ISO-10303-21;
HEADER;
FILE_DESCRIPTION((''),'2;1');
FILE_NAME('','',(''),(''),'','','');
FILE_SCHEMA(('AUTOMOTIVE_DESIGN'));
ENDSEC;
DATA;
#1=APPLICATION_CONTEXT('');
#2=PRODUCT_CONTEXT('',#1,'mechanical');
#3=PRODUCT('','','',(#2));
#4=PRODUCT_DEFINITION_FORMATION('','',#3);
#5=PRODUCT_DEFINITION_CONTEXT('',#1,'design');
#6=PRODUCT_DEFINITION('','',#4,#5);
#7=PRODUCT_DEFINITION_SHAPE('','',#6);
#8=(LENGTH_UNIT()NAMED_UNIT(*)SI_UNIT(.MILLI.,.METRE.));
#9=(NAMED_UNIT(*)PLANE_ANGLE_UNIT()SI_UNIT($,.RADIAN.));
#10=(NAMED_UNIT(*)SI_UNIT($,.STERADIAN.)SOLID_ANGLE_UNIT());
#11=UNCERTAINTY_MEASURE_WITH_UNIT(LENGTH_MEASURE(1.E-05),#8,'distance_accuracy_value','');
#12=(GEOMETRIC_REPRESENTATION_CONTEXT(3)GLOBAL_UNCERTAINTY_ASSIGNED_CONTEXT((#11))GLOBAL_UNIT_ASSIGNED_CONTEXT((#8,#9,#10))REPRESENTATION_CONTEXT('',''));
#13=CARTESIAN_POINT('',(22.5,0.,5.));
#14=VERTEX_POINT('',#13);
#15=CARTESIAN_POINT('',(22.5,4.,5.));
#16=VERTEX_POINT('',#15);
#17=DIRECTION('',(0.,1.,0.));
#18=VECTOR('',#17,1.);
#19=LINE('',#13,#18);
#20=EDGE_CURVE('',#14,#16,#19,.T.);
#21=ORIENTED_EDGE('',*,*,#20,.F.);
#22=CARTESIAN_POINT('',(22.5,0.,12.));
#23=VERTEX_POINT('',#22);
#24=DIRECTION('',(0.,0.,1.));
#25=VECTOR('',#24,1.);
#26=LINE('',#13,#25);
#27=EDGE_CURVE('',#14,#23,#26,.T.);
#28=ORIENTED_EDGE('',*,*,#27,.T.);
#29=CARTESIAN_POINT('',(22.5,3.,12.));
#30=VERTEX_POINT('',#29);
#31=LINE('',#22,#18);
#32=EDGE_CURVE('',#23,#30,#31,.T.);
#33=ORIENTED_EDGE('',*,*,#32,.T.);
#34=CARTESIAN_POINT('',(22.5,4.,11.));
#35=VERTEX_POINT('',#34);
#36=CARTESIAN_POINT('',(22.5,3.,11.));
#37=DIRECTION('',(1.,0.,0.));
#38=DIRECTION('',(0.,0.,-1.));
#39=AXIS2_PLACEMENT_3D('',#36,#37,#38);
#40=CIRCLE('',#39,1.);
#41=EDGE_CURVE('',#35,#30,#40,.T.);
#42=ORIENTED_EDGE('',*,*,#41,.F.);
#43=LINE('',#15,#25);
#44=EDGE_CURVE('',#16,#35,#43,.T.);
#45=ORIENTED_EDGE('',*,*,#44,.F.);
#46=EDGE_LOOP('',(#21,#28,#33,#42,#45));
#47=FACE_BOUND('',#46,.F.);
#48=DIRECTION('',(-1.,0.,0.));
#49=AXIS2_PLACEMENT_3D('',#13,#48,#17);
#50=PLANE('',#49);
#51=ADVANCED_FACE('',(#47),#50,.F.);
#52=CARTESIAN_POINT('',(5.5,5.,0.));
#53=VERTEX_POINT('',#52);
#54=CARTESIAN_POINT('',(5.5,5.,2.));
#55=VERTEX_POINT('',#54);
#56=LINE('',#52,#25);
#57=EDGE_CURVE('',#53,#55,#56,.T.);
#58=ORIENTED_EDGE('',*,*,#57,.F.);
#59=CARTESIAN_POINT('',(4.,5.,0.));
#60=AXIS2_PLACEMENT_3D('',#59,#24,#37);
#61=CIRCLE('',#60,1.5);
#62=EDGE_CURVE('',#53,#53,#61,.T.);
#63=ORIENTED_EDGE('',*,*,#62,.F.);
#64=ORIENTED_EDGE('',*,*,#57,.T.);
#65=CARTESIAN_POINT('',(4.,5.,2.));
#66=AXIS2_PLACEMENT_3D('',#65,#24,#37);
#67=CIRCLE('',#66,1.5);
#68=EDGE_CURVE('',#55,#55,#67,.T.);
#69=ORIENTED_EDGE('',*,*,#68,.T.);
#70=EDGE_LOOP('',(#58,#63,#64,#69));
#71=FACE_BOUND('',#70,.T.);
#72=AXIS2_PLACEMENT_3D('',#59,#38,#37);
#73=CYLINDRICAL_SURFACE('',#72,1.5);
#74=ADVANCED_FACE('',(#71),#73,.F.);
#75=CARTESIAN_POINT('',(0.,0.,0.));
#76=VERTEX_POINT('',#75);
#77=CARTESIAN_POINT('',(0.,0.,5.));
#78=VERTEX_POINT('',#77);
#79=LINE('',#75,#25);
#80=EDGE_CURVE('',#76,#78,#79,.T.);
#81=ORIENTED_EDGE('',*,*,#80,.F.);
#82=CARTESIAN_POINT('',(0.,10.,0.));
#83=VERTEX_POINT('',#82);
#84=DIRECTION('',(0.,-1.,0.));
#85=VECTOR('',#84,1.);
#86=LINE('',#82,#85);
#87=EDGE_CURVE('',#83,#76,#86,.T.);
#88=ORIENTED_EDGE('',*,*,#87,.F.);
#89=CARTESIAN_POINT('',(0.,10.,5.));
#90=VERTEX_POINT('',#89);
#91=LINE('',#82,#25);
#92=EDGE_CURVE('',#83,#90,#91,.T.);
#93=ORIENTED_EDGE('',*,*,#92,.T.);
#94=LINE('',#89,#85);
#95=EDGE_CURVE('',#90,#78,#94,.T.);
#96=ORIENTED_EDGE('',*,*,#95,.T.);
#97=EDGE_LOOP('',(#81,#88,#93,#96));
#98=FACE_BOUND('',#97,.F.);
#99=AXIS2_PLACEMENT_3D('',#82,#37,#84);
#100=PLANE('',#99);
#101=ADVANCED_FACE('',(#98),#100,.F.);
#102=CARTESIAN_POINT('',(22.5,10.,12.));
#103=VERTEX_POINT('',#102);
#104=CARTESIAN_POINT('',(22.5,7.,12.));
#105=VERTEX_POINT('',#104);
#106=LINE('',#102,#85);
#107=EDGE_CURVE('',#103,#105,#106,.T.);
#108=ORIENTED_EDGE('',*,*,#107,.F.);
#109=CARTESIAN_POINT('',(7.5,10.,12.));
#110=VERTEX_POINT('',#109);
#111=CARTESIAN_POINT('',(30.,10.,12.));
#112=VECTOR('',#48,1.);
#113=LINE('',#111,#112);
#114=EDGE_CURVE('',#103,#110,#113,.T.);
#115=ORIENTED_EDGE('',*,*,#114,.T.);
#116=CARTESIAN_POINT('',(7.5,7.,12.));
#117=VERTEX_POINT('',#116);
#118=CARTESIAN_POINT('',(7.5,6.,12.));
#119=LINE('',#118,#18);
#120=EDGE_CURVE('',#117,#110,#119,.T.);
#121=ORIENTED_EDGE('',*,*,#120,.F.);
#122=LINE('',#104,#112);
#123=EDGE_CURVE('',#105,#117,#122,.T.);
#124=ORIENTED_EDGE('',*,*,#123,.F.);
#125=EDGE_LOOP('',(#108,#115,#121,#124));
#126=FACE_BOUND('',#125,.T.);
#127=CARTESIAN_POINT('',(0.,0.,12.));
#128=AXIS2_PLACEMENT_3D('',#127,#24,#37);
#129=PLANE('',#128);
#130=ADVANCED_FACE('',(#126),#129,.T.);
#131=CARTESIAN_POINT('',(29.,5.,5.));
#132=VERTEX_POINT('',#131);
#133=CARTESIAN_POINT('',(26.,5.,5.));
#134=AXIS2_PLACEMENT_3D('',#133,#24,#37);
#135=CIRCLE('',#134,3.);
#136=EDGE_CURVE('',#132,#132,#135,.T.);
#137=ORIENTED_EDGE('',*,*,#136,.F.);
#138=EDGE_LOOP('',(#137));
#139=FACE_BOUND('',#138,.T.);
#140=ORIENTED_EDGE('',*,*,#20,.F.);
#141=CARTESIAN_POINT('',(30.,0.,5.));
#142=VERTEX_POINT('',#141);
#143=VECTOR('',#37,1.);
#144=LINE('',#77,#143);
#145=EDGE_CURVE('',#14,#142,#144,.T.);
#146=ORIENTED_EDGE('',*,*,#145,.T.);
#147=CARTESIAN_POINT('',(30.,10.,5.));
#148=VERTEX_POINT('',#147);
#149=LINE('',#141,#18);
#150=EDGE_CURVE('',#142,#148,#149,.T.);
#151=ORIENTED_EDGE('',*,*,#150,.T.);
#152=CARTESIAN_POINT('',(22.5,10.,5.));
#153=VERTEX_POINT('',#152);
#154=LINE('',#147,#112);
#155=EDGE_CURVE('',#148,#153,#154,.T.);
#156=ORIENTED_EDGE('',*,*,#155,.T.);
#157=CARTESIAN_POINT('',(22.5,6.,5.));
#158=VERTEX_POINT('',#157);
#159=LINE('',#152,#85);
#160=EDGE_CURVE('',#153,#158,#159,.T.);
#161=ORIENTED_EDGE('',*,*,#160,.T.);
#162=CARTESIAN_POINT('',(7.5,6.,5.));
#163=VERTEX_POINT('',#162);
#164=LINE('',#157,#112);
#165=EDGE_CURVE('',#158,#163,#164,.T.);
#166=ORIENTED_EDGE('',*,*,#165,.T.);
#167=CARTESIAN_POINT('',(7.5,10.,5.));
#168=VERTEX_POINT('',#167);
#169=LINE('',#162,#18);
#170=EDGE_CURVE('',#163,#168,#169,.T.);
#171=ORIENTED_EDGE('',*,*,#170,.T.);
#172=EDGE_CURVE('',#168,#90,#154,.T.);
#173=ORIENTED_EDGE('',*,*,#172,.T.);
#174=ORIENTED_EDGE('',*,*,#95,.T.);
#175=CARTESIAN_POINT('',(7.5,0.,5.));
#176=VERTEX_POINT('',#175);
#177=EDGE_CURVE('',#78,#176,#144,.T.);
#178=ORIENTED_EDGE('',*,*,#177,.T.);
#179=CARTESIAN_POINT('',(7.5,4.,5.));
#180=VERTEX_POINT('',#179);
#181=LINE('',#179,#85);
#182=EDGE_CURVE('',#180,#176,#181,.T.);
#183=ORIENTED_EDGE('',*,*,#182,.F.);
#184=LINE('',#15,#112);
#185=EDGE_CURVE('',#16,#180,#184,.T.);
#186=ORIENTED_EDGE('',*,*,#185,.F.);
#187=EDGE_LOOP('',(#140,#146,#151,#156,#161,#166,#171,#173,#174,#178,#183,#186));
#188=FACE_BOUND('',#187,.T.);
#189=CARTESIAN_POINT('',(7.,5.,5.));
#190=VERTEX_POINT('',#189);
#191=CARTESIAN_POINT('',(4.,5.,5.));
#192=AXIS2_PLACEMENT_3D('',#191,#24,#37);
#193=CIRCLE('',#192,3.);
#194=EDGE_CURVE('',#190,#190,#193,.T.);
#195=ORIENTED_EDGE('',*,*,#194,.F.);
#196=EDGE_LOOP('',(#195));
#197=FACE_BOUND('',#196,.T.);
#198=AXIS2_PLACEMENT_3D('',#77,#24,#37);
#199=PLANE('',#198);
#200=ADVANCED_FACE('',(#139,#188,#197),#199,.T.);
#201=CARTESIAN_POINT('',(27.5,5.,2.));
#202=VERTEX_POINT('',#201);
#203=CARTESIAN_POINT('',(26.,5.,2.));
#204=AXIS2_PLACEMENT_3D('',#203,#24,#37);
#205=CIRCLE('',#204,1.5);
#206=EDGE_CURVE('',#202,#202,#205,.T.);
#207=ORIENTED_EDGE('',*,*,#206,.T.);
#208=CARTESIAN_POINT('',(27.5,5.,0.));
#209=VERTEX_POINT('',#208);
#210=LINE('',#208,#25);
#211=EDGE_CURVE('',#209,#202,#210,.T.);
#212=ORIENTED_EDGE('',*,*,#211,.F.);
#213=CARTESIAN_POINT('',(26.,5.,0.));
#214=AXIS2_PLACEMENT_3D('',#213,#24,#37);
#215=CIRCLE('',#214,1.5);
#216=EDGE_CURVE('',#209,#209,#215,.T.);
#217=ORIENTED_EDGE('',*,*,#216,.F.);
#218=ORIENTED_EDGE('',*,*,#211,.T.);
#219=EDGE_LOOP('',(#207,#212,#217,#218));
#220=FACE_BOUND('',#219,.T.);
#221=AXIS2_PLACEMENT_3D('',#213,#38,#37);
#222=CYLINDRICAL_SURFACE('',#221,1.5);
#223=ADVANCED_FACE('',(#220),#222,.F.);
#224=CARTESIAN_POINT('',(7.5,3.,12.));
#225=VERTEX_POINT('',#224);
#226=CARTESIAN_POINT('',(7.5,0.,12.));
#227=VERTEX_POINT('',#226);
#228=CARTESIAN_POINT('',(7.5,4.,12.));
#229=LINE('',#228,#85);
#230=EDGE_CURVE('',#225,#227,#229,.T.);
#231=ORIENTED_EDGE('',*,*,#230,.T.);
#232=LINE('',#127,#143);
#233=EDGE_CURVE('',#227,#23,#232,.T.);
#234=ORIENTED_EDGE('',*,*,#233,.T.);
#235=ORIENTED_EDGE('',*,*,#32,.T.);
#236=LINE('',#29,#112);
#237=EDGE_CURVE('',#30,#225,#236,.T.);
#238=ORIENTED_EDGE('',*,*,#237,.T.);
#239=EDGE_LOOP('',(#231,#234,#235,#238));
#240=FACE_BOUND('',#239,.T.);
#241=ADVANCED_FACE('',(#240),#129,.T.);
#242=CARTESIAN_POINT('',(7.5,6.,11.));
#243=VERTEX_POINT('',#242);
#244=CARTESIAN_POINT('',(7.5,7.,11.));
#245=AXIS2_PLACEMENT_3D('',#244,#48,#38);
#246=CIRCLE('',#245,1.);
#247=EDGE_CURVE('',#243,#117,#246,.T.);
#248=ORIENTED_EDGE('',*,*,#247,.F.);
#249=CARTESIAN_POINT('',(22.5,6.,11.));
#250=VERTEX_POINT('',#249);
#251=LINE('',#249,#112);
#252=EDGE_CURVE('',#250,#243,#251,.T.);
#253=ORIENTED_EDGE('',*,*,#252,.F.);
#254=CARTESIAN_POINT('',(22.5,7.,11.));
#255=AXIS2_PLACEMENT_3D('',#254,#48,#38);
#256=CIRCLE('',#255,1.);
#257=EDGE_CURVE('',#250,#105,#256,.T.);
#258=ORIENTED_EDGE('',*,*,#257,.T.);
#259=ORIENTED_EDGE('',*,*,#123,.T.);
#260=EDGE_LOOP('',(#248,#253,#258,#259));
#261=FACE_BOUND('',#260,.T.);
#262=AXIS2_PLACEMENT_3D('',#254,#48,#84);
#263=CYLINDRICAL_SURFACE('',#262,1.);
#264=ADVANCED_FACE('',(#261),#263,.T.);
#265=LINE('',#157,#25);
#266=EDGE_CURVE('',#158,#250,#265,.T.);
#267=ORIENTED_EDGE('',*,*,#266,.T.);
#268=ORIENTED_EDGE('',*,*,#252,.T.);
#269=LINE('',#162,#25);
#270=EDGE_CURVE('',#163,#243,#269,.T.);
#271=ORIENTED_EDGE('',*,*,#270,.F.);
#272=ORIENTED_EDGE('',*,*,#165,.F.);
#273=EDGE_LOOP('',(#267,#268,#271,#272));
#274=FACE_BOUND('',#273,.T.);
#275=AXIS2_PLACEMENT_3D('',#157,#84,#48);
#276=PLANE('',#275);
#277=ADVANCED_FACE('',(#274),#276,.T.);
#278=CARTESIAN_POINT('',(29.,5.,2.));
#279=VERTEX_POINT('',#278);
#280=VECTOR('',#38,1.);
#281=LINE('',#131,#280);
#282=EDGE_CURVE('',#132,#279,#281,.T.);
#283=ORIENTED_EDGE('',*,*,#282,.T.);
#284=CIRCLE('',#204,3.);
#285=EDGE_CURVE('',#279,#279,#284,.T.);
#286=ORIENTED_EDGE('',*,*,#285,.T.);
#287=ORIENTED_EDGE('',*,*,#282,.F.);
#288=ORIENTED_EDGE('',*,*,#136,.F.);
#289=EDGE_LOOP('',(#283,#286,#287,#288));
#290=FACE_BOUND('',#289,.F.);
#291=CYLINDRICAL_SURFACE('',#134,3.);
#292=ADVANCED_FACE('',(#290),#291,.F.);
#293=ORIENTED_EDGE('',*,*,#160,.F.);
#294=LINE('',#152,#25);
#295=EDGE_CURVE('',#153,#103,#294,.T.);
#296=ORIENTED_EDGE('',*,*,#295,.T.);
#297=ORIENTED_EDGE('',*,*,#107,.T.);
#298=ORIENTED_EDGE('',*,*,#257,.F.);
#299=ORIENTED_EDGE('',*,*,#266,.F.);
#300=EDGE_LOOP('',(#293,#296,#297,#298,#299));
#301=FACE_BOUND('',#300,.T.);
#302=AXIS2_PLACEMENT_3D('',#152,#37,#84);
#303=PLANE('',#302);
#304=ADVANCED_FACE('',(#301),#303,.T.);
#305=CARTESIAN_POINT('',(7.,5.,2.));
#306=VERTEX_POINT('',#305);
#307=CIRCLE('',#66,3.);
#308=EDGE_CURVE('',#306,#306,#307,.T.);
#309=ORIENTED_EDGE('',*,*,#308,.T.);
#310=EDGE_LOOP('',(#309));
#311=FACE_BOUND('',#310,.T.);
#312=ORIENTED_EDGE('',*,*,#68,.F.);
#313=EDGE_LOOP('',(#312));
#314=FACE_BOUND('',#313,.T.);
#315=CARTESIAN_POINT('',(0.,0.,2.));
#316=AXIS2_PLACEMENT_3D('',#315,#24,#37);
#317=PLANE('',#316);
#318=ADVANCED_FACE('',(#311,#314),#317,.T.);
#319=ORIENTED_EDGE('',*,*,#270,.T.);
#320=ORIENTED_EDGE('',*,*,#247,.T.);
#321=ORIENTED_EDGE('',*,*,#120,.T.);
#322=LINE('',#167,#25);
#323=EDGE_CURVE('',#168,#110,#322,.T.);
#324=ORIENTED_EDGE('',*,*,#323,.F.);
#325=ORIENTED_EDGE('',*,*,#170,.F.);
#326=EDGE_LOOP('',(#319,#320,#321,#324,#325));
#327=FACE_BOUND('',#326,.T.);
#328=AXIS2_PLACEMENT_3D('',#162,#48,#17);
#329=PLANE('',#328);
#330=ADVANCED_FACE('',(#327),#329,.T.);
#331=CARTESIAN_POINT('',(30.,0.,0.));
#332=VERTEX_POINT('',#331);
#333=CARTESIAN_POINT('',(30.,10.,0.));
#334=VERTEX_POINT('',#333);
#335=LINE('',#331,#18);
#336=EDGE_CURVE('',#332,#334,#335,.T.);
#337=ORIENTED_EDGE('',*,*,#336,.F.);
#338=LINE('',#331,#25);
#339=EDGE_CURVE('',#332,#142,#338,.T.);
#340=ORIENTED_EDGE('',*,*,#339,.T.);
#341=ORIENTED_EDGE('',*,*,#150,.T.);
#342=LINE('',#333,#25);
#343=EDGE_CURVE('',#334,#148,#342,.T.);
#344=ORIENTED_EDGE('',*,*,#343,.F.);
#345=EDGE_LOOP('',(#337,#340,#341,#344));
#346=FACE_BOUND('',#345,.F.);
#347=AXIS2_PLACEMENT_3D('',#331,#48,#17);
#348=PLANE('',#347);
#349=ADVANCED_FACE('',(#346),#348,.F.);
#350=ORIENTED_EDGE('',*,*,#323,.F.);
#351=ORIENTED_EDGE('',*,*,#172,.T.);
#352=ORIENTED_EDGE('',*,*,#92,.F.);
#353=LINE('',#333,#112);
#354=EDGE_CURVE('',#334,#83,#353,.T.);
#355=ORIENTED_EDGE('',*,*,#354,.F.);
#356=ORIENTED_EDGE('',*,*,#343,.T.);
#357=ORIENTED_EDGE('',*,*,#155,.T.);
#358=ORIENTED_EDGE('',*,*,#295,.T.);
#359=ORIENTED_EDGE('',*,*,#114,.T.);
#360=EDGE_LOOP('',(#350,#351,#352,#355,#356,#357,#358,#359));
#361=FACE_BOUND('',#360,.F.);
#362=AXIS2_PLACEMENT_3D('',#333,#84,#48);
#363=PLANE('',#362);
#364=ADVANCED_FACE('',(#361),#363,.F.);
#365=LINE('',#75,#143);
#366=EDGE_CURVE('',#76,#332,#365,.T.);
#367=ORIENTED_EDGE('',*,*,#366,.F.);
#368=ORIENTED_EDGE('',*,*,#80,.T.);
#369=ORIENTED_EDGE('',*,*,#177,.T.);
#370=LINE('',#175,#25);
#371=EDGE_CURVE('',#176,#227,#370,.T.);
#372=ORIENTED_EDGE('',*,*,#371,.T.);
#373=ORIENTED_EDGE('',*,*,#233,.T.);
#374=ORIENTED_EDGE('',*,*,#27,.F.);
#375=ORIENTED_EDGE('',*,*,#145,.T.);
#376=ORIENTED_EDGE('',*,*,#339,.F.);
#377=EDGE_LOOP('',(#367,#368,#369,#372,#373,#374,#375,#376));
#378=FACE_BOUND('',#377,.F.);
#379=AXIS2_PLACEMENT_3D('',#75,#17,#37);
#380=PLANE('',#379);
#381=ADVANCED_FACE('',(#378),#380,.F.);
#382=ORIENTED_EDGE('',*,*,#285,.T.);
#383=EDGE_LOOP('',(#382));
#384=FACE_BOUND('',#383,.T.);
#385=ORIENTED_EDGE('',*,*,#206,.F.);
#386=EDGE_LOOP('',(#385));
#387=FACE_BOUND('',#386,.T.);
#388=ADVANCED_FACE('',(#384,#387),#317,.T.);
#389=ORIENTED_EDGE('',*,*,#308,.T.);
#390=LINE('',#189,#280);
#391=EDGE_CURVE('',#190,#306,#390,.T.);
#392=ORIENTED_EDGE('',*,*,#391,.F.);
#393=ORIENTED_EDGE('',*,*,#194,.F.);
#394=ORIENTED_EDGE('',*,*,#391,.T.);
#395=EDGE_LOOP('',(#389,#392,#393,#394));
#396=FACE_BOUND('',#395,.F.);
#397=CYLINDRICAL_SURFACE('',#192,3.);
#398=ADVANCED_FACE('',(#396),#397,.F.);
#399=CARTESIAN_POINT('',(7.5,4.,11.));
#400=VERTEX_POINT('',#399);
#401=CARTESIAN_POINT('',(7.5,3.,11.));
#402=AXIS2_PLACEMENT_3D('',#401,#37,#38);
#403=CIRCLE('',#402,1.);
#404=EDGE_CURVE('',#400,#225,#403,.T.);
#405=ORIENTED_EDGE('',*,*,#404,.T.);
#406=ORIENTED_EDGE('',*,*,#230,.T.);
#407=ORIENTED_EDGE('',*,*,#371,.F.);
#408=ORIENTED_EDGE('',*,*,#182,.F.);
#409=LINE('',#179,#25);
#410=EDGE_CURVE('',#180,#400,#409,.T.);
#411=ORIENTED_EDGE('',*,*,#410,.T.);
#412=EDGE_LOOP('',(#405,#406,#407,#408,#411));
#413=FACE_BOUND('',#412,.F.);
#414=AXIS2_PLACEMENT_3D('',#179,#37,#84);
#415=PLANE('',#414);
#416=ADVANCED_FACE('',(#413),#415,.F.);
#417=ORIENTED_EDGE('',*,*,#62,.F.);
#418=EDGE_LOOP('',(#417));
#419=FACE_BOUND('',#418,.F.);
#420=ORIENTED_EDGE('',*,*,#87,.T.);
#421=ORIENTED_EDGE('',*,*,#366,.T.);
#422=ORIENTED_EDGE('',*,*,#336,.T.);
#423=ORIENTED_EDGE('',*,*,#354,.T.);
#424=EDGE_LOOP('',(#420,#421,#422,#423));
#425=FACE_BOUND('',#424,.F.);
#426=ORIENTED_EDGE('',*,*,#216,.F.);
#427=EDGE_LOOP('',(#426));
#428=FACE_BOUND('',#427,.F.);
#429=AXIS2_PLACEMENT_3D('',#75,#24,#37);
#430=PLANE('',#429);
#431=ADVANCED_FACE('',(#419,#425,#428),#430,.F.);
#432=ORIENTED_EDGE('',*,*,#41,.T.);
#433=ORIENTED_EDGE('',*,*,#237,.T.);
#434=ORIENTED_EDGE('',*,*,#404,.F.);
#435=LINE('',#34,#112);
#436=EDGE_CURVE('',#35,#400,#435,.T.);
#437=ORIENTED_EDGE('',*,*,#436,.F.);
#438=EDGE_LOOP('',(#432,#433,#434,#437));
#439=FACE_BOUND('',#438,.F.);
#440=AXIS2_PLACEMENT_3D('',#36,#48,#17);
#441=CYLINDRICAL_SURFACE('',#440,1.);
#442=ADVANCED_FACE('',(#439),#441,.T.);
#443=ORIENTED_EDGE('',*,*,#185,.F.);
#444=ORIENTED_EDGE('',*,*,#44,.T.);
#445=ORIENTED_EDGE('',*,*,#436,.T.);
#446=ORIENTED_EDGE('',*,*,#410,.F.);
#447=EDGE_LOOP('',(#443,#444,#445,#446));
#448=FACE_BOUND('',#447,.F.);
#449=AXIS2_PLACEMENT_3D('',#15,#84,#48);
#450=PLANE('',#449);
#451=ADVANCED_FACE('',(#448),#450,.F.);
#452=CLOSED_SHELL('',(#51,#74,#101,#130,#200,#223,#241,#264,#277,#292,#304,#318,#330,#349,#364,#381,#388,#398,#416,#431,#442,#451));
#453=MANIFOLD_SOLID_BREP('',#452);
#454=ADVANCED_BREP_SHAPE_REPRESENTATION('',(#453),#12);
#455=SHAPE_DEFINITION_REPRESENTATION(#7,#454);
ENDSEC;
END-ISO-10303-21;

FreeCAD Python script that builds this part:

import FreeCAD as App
import Part
import Sketcher
from FreeCAD import Vector


def edges_at(feature, points):
    """Names of the edges that pass closest to the given points."""
    edges = feature.Shape.Edges
    near = lambda p: min(range(len(edges)), key=lambda i: edges[i].distToShape(Part.Vertex(*p))[0])
    return sorted({f"Edge{near(p) + 1}" for p in points})

doc = App.newDocument("Part")
body = doc.addObject("PartDesign::Body", "Body")

# Sketch on XY plane
sketch1 = body.newObject("Sketcher::SketchObject", "Sketch")
sketch1.AttachmentSupport = (doc.getObject("XY_Plane"), [""])
sketch1.MapMode = "FlatFace"
sketch1.addGeometry([
    Part.LineSegment(Vector(0, 10, 0), Vector(0, 0, 0)),  # 0
    Part.LineSegment(Vector(0, 0, 0), Vector(30, 0, 0)),  # 1
    Part.LineSegment(Vector(30, 0, 0), Vector(30, 10, 0)),  # 2
    Part.LineSegment(Vector(30, 10, 0), Vector(0, 10, 0)),  # 3
    Part.Circle(Vector(4, 5, 0), Vector(0, 0, 1), 1.5),  # 4
    Part.Circle(Vector(26, 5, 0), Vector(0, 0, 1), 1.5),  # 5
], False)
sketch1.addConstraint([
    Sketcher.Constraint("Coincident", 0, 2, 1, 1),
    Sketcher.Constraint("Coincident", 1, 2, 2, 1),
    Sketcher.Constraint("Coincident", 2, 2, 3, 1),
    Sketcher.Constraint("Coincident", 3, 2, 0, 1),
    Sketcher.Constraint("Vertical", 0),
    Sketcher.Constraint("Horizontal", 1),
    Sketcher.Constraint("Vertical", 2),
    Sketcher.Constraint("Horizontal", 3),
    Sketcher.Constraint("Coincident", 0, 2, -1, 1),
    Sketcher.Constraint("Equal", 4, 5),
    Sketcher.Constraint("Horizontal", 4, 3, 5, 3),
    Sketcher.Constraint("Diameter", 4, 3.0),
    Sketcher.Constraint("DistanceX", 1, 1, 1, 2, 30.0),
    Sketcher.Constraint("DistanceY", 0, 2, 0, 1, 10.0),
    Sketcher.Constraint("DistanceX", -1, 1, 4, 3, 4.0),
    Sketcher.Constraint("DistanceX", 5, 3, 1, 2, 4.0),
    Sketcher.Constraint("DistanceY", -1, 1, 4, 3, 5.0),
])
pad1 = body.newObject("PartDesign::Pad", "Pad")
pad1.Profile = sketch1
pad1.Length = 5

# Sketch on XY plane
sketch2 = body.newObject("Sketcher::SketchObject", "Sketch001")
sketch2.AttachmentSupport = (doc.getObject("XY_Plane"), [""])
sketch2.MapMode = "FlatFace"
sketch2.AttachmentOffset = App.Placement(Vector(0, 0, 5), App.Rotation())
sketch2.addGeometry([
    Part.LineSegment(Vector(22.5, 6, 0), Vector(22.5, 10, 0)),  # 0
    Part.LineSegment(Vector(22.5, 10, 0), Vector(7.5, 10, 0)),  # 1
    Part.LineSegment(Vector(7.5, 10, 0), Vector(7.5, 6, 0)),  # 2
    Part.LineSegment(Vector(7.5, 6, 0), Vector(22.5, 6, 0)),  # 3
    Part.LineSegment(Vector(7.5, 4, 0), Vector(7.5, 0, 0)),  # 4
    Part.LineSegment(Vector(7.5, 0, 0), Vector(22.5, 0, 0)),  # 5
    Part.LineSegment(Vector(22.5, 0, 0), Vector(22.5, 4, 0)),  # 6
    Part.LineSegment(Vector(22.5, 4, 0), Vector(7.5, 4, 0)),  # 7
], False)
sketch2.addConstraint([
    Sketcher.Constraint("Coincident", 0, 2, 1, 1),
    Sketcher.Constraint("Coincident", 1, 2, 2, 1),
    Sketcher.Constraint("Coincident", 2, 2, 3, 1),
    Sketcher.Constraint("Coincident", 3, 2, 0, 1),
    Sketcher.Constraint("Coincident", 4, 2, 5, 1),
    Sketcher.Constraint("Coincident", 5, 2, 6, 1),
    Sketcher.Constraint("Coincident", 6, 2, 7, 1),
    Sketcher.Constraint("Coincident", 7, 2, 4, 1),
    Sketcher.Constraint("Vertical", 0),
    Sketcher.Constraint("Horizontal", 1),
    Sketcher.Constraint("Vertical", 2),
    Sketcher.Constraint("Horizontal", 3),
    Sketcher.Constraint("Vertical", 4),
    Sketcher.Constraint("Horizontal", 5),
    Sketcher.Constraint("Vertical", 6),
    Sketcher.Constraint("Horizontal", 7),
    Sketcher.Constraint("PointOnObject", 4, 2, -1),
    Sketcher.Constraint("Vertical", 2, 2, 4, 2),
    Sketcher.Constraint("Vertical", 3, 2, 5, 2),
    Sketcher.Constraint("Equal", 2, 4),
    Sketcher.Constraint("DistanceX", 1, 2, 1, 1, 15.0),
    Sketcher.Constraint("DistanceY", 0, 1, 0, 2, 4.0),
    Sketcher.Constraint("DistanceY", 6, 2, 3, 2, 2.0),
    Sketcher.Constraint("DistanceX", -1, 1, 0, 2, 22.5),
])
pad2 = body.newObject("PartDesign::Pad", "Pad001")
pad2.Profile = sketch2
pad2.Length = 7
doc.recompute()

fillet = body.newObject("PartDesign::Fillet", "Fillet")
fillet.Base = (pad2, edges_at(pad2, [(15, 6, 12), (15, 4, 12)]))
fillet.Radius = 1

# Sketch on XY plane
sketch3 = body.newObject("Sketcher::SketchObject", "Sketch002")
sketch3.AttachmentSupport = (doc.getObject("XY_Plane"), [""])
sketch3.MapMode = "FlatFace"
sketch3.AttachmentOffset = App.Placement(Vector(0, 0, 5), App.Rotation())
sketch3.addGeometry([
    Part.Circle(Vector(4, 5, 0), Vector(0, 0, 1), 3),
    Part.Circle(Vector(4, 5, 0), Vector(0, 0, 1), 1.5),
    Part.Circle(Vector(26, 5, 0), Vector(0, 0, 1), 3),
    Part.Circle(Vector(26, 5, 0), Vector(0, 0, 1), 1.5),
], False)
sketch3.addConstraint([
    Sketcher.Constraint("Coincident", 1, 3, 0, 3),
    Sketcher.Constraint("Coincident", 3, 3, 2, 3),
    Sketcher.Constraint("Equal", 0, 2),
    Sketcher.Constraint("Equal", 1, 3),
    Sketcher.Constraint("Horizontal", 1, 3, 2, 3),
    Sketcher.Constraint("Diameter", 0, 6.0),
    Sketcher.Constraint("Diameter", 1, 3.0),
    Sketcher.Constraint("DistanceX", -1, 1, 0, 3, 4.0),
    Sketcher.Constraint("DistanceY", -1, 1, 0, 3, 5.0),
    Sketcher.Constraint("DistanceX", -1, 1, 2, 3, 26.0),
])
pocket1 = body.newObject("PartDesign::Pocket", "Pocket")
pocket1.Profile = sketch3
pocket1.Length = 3

doc.recompute()
